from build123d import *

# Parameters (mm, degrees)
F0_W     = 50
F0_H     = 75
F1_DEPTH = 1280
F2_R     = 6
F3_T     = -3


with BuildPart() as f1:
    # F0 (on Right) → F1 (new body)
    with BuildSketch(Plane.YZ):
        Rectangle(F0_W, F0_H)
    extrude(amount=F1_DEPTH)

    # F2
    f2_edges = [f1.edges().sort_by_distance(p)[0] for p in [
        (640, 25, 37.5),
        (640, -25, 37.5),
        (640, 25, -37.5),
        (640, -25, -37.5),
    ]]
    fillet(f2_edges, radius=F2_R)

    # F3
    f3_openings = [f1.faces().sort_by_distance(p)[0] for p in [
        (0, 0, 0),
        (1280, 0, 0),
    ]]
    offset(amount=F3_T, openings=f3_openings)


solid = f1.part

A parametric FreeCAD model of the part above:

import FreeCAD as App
import Part
import Sketcher
Q = App.Units.Quantity


def edges_at(feature, points):
    """Names of the edges that pass closest to the given points."""
    edges = feature.Shape.Edges
    near = lambda p: min(range(len(edges)), key=lambda i: edges[i].distToShape(Part.Vertex(*p))[0])
    return sorted({f"Edge{near(p) + 1}" for p in points})


def faces_at(feature, points):
    """Names of the faces that lie closest to the given points."""
    faces = feature.Shape.Faces
    near = lambda p: min(range(len(faces)), key=lambda i: faces[i].distToShape(Part.Vertex(*p))[0])
    return sorted({f"Face{near(p) + 1}" for p in points})


def add_polygon(sketch, points):
    """Adds a closed chain of lines whose ends are joined by coincident constraints."""
    first, n = sketch.GeometryCount, len(points)
    for a, b in zip(points, points[1:] + points[:1]):
        sketch.addGeometry(Part.LineSegment(App.Vector(*a, 0), App.Vector(*b, 0)), False)
    for i in range(n):
        sketch.addConstraint(Sketcher.Constraint("Coincident", first + i, 2, first + (i + 1) % n, 1))

doc = App.newDocument("Part")
body = doc.addObject("PartDesign::Body", "Body")

sketch1 = body.newObject("Sketcher::SketchObject", "Sketch")
sketch1.AttachmentSupport = (doc.getObject("YZ_Plane"), [""])
sketch1.MapMode = "FlatFace"
add_polygon(sketch1, [(-25, 38), (-25, -38), (25, -38), (25, 38)])
sketch1.addConstraint(Sketcher.Constraint("Vertical", 0))
sketch1.addConstraint(Sketcher.Constraint("Horizontal", 1))
sketch1.addConstraint(Sketcher.Constraint("Vertical", 2))
sketch1.addConstraint(Sketcher.Constraint("Horizontal", 3))
sketch1.addConstraint(Sketcher.Constraint("Symmetric", 0, 2, 2, 2, -1, 1))
sketch1.addConstraint(Sketcher.Constraint("DistanceX", 1, 1, 1, 2, Q("50 mm")))
sketch1.addConstraint(Sketcher.Constraint("DistanceY", 0, 2, 0, 1, Q("75 mm")))
pad1 = body.newObject("PartDesign::Pad", "Pad")
pad1.Profile = sketch1
pad1.Length = 1280
doc.recompute()

fillet = body.newObject("PartDesign::Fillet", "Fillet")
fillet.Base = (pad1, edges_at(pad1, [
    (640, 25, 37.5),
    (640, -25, 37.5),
    (640, 25, -37.5),
    (640, -25, -37.5),
]))
fillet.Radius = 6
doc.recompute()

thickness = body.newObject("PartDesign::Thickness", "Thickness")
thickness.Base = (fillet, faces_at(fillet, [(0, 0, 0), (1280, 0, 0)]))
thickness.Value = 3
thickness.Reversed = True
thickness.Join = "Arc"

doc.recompute()
